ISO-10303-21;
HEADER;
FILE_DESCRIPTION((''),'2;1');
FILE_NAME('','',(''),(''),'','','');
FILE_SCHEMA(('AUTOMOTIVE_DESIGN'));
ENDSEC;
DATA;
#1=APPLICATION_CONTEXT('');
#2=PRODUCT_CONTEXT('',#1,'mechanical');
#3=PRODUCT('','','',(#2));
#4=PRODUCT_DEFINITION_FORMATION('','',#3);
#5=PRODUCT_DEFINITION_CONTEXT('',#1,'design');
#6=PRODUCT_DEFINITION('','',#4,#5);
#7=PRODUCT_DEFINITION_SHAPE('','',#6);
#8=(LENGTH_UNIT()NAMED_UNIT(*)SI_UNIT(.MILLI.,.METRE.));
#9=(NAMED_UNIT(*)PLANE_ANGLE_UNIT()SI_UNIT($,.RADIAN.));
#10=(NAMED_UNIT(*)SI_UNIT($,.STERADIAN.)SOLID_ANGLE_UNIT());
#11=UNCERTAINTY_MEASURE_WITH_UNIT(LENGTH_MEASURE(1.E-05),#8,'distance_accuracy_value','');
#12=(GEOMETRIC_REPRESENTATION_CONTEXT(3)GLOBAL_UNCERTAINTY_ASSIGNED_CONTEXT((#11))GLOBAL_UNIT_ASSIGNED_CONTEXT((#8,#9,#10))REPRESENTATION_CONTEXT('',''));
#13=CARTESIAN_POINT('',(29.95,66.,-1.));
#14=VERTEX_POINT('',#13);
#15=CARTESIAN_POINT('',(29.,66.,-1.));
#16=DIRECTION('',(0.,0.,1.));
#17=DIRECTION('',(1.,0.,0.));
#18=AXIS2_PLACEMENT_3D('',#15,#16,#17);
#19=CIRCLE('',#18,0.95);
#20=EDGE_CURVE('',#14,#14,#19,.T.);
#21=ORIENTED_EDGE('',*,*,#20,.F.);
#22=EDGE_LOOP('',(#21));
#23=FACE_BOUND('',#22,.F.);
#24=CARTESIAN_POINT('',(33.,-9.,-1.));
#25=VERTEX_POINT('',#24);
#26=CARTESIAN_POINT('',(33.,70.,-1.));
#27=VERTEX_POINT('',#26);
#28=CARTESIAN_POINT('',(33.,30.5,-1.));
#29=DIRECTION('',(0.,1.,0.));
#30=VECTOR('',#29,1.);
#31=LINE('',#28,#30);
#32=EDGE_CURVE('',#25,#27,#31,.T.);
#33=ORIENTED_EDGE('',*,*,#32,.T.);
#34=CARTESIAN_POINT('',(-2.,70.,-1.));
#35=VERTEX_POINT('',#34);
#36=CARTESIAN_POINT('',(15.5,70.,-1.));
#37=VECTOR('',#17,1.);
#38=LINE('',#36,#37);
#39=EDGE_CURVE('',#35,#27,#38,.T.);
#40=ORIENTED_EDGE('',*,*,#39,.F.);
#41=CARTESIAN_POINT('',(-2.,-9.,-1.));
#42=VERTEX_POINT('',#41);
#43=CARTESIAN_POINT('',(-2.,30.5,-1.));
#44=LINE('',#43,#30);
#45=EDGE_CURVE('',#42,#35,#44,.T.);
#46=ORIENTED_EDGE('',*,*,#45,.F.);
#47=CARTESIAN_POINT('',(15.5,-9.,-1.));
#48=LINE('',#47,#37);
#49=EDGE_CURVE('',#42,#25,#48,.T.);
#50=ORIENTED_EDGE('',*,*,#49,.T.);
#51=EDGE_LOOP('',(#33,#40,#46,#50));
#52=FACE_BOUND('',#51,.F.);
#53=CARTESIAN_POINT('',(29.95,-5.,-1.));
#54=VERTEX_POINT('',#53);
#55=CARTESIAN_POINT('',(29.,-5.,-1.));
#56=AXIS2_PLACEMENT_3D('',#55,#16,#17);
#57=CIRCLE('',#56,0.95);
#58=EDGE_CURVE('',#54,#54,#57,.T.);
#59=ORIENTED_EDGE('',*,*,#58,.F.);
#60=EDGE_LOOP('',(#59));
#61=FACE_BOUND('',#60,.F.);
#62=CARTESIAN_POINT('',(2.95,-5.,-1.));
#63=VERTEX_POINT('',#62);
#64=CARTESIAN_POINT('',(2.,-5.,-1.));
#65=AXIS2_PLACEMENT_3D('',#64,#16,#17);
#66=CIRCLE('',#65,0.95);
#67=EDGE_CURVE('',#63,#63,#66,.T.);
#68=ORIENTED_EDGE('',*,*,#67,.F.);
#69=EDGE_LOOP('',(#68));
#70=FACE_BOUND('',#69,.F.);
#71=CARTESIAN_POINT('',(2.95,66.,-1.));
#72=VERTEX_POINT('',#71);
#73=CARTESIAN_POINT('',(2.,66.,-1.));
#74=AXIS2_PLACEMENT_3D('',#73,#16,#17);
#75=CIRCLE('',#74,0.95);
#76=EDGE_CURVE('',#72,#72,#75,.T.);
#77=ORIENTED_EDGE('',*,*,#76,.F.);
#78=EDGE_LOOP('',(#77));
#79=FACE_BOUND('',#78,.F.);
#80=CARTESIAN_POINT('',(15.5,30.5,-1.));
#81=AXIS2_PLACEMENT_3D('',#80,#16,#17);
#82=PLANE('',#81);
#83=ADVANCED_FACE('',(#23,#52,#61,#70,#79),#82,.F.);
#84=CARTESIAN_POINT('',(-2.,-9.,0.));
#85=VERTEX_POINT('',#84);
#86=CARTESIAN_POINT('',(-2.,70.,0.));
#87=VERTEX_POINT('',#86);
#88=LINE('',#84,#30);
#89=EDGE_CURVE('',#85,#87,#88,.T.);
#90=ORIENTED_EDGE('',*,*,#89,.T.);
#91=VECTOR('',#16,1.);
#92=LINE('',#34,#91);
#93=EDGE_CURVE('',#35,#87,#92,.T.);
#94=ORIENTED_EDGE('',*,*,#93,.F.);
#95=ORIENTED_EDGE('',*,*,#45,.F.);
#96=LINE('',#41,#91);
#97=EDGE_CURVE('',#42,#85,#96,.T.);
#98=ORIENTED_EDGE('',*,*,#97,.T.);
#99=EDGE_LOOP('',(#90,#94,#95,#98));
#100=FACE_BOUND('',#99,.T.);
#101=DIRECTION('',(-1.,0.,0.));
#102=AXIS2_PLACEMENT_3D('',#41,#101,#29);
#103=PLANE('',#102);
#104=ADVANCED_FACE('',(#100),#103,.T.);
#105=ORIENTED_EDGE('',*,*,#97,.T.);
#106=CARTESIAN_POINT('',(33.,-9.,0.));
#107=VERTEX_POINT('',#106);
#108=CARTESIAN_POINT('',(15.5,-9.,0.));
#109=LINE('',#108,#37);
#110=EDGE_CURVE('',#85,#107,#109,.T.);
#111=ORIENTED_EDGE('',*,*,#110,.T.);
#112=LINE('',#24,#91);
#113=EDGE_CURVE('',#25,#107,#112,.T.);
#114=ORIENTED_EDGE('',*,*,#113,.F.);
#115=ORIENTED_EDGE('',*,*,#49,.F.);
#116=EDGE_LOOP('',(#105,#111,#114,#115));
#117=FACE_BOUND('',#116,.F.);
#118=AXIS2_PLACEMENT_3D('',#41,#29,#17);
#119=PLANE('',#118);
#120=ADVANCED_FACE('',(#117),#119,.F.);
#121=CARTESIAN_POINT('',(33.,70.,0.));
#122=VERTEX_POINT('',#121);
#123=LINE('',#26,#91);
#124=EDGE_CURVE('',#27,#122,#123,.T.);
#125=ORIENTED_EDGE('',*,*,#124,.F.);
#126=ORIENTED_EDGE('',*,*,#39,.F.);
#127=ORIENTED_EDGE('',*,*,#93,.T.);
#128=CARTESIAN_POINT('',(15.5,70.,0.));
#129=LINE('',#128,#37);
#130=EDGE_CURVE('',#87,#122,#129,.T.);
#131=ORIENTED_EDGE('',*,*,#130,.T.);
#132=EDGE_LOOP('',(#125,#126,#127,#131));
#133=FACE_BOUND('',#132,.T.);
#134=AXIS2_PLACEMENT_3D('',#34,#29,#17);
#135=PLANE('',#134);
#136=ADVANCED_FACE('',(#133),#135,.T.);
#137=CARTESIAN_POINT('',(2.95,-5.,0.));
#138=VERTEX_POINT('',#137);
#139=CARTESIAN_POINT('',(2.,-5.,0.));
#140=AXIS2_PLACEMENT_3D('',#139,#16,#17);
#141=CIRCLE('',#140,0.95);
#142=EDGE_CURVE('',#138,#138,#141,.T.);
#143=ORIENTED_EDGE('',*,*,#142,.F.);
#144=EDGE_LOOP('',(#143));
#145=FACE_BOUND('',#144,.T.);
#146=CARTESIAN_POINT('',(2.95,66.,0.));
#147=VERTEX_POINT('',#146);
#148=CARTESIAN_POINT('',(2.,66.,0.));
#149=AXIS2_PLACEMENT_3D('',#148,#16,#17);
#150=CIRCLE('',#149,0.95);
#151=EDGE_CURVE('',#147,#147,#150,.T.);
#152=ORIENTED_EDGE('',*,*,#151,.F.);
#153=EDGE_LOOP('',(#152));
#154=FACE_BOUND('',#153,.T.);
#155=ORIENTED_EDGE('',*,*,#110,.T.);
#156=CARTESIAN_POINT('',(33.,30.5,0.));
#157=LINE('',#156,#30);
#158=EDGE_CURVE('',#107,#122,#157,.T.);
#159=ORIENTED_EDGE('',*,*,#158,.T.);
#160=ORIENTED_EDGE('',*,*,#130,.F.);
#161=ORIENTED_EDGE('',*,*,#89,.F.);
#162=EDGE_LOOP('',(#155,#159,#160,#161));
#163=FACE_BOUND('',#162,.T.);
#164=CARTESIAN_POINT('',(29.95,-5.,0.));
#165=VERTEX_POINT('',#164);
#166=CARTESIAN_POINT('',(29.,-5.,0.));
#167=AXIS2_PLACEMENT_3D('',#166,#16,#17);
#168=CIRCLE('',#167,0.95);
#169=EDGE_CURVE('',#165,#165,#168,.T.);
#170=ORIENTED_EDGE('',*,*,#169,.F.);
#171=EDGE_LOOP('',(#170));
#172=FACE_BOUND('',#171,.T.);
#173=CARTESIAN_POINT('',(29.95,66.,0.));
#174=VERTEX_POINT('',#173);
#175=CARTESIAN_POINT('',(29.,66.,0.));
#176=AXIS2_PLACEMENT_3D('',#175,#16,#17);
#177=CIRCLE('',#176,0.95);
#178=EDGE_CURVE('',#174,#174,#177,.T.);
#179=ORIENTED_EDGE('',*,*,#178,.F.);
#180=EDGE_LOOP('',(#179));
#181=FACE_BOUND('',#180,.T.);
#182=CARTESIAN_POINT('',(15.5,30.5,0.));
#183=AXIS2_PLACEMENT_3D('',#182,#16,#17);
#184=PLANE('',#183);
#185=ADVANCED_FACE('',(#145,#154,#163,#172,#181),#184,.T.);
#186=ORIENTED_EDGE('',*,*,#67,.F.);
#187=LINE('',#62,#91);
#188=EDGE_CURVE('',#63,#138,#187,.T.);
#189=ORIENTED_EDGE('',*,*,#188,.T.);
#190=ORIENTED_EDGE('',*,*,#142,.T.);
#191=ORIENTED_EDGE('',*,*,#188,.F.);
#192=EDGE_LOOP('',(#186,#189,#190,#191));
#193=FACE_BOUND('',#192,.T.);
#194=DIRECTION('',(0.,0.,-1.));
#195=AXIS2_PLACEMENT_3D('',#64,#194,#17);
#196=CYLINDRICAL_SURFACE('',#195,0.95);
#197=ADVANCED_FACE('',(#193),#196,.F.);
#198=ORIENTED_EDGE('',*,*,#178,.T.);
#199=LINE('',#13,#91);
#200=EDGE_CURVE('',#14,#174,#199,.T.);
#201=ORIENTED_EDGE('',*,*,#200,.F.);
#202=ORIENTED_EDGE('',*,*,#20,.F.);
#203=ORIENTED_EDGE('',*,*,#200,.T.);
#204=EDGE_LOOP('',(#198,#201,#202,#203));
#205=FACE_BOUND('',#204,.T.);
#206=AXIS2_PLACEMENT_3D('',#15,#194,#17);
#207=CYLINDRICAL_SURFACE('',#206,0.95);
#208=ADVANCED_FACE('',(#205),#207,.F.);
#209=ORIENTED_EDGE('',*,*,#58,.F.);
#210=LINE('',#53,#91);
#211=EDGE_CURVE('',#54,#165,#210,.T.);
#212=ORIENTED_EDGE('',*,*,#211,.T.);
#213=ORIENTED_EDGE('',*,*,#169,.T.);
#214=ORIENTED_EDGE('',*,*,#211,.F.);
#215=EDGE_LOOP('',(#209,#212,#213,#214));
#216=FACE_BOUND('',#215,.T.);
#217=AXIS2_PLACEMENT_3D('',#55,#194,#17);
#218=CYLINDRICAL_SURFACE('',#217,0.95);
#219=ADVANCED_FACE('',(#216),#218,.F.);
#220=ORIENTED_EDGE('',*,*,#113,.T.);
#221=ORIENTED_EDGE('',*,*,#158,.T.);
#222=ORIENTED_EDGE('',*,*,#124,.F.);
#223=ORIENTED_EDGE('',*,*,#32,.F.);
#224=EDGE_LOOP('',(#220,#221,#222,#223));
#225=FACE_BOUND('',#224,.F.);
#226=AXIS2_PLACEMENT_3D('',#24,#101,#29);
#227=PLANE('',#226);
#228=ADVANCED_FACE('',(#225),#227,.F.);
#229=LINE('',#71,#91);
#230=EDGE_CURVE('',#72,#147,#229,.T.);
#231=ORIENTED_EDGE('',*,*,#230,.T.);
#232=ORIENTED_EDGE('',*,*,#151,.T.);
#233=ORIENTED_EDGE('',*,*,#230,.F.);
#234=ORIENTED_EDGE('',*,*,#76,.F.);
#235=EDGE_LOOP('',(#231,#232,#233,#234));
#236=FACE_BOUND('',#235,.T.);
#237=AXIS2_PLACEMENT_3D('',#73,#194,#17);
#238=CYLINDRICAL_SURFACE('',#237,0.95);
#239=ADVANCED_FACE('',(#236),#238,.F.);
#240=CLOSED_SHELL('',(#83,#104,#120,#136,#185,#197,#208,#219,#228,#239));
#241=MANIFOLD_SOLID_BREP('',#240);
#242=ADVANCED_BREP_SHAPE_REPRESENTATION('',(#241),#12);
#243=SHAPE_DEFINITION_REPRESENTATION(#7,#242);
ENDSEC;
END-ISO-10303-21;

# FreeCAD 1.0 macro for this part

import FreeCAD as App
import Part
import Sketcher


def add_polygon(sketch, points):
    """Adds a closed chain of lines whose ends are joined by coincident constraints."""
    first, n = sketch.GeometryCount, len(points)
    for a, b in zip(points, points[1:] + points[:1]):
        sketch.addGeometry(Part.LineSegment(App.Vector(*a, 0), App.Vector(*b, 0)), False)
    for i in range(n):
        sketch.addConstraint(Sketcher.Constraint("Coincident", first + i, 2, first + (i + 1) % n, 1))

doc = App.newDocument("Part")
body = doc.addObject("PartDesign::Body", "Body")

# Sketch on YZ plane
sketch1 = body.newObject("Sketcher::SketchObject", "Sketch")
sketch1.AttachmentSupport = (doc.getObject("YZ_Plane"), [""])
sketch1.MapMode = "FlatFace"
sketch1.AttachmentOffset = App.Placement(App.Vector(0, 0, -3), App.Rotation())
add_polygon(sketch1, [(7, 5), (7, 0), (3, 0), (3, 5)])  # lines 0-3
sketch1.addConstraint(Sketcher.Constraint("Vertical", 0))
sketch1.addConstraint(Sketcher.Constraint("Horizontal", 1))
sketch1.addConstraint(Sketcher.Constraint("Vertical", 2))
sketch1.addConstraint(Sketcher.Constraint("Horizontal", 3))
sketch1.addConstraint(Sketcher.Constraint("PointOnObject", 0, 2, -1))
sketch1.addConstraint(Sketcher.Constraint("DistanceX", 1, 2, 1, 1, 4.0))
sketch1.addConstraint(Sketcher.Constraint("DistanceY", 0, 2, 0, 1, 5.0))
sketch1.addConstraint(Sketcher.Constraint("DistanceX", -1, 1, 0, 2, 7.0))
pad1 = body.newObject("PartDesign::Pad", "Pad")
pad1.Profile = sketch1
pad1.Length = 4
body2 = doc.addObject("PartDesign::Body", "Body001")

# Sketch on XY plane
sketch2 = body2.newObject("Sketcher::SketchObject", "Sketch001")
sketch2.AttachmentSupport = (doc.getObject("XY_Plane001"), [""])
sketch2.MapMode = "FlatFace"
sketch2.AttachmentOffset = App.Placement(App.Vector(0, 0, -1), App.Rotation())
add_polygon(sketch2, [(-2, 70), (-2, -9), (33, -9), (33, 70)])  # lines 0-3
sketch2.addGeometry(Part.Circle(App.Vector(2, -5, 0), App.Vector(0, 0, 1), 0.9), False)  # 4
sketch2.addGeometry(Part.Circle(App.Vector(29, -5, 0), App.Vector(0, 0, 1), 0.9), False)  # 5
sketch2.addGeometry(Part.Circle(App.Vector(2, 66, 0), App.Vector(0, 0, 1), 0.9), False)  # 6
sketch2.addGeometry(Part.Circle(App.Vector(29, 66, 0), App.Vector(0, 0, 1), 0.9), False)  # 7
sketch2.addConstraint(Sketcher.Constraint("Vertical", 0))
sketch2.addConstraint(Sketcher.Constraint("Horizontal", 1))
sketch2.addConstraint(Sketcher.Constraint("Vertical", 2))
sketch2.addConstraint(Sketcher.Constraint("Horizontal", 3))
sketch2.addConstraint(Sketcher.Constraint("Equal", 4, 5))
sketch2.addConstraint(Sketcher.Constraint("Equal", 5, 6))
sketch2.addConstraint(Sketcher.Constraint("Equal", 6, 7))
sketch2.addConstraint(Sketcher.Constraint("Horizontal", 4, 3, 5, 3))
sketch2.addConstraint(Sketcher.Constraint("Horizontal", 6, 3, 7, 3))
sketch2.addConstraint(Sketcher.Constraint("Vertical", 4, 3, 6, 3))
sketch2.addConstraint(Sketcher.Constraint("Vertical", 5, 3, 7, 3))
sketch2.addConstraint(Sketcher.Constraint("Diameter", 4, 1.9))
sketch2.addConstraint(Sketcher.Constraint("DistanceX", 1, 1, 1, 2, 35.0))
sketch2.addConstraint(Sketcher.Constraint("DistanceY", 0, 2, 0, 1, 79.0))
sketch2.addConstraint(Sketcher.Constraint("DistanceX", -1, 1, 4, 3, 2.0))
sketch2.addConstraint(Sketcher.Constraint("DistanceY", 4, 3, -1, 1, 5.0))
sketch2.addConstraint(Sketcher.Constraint("DistanceX", -1, 1, 5, 3, 29.0))
sketch2.addConstraint(Sketcher.Constraint("DistanceY", -1, 1, 6, 3, 66.0))
sketch2.addConstraint(Sketcher.Constraint("DistanceX", 0, 2, -1, 1, 2.0))
sketch2.addConstraint(Sketcher.Constraint("DistanceY", 0, 2, -1, 1, 9.0))
pad2 = body2.newObject("PartDesign::Pad", "Pad001")
pad2.Profile = sketch2
pad2.Length = 1
doc.recompute()

boolean = body2.newObject("PartDesign::Boolean", "Boolean")
boolean.Type = "Cut"
boolean.addObjects([body])

doc.recompute()
